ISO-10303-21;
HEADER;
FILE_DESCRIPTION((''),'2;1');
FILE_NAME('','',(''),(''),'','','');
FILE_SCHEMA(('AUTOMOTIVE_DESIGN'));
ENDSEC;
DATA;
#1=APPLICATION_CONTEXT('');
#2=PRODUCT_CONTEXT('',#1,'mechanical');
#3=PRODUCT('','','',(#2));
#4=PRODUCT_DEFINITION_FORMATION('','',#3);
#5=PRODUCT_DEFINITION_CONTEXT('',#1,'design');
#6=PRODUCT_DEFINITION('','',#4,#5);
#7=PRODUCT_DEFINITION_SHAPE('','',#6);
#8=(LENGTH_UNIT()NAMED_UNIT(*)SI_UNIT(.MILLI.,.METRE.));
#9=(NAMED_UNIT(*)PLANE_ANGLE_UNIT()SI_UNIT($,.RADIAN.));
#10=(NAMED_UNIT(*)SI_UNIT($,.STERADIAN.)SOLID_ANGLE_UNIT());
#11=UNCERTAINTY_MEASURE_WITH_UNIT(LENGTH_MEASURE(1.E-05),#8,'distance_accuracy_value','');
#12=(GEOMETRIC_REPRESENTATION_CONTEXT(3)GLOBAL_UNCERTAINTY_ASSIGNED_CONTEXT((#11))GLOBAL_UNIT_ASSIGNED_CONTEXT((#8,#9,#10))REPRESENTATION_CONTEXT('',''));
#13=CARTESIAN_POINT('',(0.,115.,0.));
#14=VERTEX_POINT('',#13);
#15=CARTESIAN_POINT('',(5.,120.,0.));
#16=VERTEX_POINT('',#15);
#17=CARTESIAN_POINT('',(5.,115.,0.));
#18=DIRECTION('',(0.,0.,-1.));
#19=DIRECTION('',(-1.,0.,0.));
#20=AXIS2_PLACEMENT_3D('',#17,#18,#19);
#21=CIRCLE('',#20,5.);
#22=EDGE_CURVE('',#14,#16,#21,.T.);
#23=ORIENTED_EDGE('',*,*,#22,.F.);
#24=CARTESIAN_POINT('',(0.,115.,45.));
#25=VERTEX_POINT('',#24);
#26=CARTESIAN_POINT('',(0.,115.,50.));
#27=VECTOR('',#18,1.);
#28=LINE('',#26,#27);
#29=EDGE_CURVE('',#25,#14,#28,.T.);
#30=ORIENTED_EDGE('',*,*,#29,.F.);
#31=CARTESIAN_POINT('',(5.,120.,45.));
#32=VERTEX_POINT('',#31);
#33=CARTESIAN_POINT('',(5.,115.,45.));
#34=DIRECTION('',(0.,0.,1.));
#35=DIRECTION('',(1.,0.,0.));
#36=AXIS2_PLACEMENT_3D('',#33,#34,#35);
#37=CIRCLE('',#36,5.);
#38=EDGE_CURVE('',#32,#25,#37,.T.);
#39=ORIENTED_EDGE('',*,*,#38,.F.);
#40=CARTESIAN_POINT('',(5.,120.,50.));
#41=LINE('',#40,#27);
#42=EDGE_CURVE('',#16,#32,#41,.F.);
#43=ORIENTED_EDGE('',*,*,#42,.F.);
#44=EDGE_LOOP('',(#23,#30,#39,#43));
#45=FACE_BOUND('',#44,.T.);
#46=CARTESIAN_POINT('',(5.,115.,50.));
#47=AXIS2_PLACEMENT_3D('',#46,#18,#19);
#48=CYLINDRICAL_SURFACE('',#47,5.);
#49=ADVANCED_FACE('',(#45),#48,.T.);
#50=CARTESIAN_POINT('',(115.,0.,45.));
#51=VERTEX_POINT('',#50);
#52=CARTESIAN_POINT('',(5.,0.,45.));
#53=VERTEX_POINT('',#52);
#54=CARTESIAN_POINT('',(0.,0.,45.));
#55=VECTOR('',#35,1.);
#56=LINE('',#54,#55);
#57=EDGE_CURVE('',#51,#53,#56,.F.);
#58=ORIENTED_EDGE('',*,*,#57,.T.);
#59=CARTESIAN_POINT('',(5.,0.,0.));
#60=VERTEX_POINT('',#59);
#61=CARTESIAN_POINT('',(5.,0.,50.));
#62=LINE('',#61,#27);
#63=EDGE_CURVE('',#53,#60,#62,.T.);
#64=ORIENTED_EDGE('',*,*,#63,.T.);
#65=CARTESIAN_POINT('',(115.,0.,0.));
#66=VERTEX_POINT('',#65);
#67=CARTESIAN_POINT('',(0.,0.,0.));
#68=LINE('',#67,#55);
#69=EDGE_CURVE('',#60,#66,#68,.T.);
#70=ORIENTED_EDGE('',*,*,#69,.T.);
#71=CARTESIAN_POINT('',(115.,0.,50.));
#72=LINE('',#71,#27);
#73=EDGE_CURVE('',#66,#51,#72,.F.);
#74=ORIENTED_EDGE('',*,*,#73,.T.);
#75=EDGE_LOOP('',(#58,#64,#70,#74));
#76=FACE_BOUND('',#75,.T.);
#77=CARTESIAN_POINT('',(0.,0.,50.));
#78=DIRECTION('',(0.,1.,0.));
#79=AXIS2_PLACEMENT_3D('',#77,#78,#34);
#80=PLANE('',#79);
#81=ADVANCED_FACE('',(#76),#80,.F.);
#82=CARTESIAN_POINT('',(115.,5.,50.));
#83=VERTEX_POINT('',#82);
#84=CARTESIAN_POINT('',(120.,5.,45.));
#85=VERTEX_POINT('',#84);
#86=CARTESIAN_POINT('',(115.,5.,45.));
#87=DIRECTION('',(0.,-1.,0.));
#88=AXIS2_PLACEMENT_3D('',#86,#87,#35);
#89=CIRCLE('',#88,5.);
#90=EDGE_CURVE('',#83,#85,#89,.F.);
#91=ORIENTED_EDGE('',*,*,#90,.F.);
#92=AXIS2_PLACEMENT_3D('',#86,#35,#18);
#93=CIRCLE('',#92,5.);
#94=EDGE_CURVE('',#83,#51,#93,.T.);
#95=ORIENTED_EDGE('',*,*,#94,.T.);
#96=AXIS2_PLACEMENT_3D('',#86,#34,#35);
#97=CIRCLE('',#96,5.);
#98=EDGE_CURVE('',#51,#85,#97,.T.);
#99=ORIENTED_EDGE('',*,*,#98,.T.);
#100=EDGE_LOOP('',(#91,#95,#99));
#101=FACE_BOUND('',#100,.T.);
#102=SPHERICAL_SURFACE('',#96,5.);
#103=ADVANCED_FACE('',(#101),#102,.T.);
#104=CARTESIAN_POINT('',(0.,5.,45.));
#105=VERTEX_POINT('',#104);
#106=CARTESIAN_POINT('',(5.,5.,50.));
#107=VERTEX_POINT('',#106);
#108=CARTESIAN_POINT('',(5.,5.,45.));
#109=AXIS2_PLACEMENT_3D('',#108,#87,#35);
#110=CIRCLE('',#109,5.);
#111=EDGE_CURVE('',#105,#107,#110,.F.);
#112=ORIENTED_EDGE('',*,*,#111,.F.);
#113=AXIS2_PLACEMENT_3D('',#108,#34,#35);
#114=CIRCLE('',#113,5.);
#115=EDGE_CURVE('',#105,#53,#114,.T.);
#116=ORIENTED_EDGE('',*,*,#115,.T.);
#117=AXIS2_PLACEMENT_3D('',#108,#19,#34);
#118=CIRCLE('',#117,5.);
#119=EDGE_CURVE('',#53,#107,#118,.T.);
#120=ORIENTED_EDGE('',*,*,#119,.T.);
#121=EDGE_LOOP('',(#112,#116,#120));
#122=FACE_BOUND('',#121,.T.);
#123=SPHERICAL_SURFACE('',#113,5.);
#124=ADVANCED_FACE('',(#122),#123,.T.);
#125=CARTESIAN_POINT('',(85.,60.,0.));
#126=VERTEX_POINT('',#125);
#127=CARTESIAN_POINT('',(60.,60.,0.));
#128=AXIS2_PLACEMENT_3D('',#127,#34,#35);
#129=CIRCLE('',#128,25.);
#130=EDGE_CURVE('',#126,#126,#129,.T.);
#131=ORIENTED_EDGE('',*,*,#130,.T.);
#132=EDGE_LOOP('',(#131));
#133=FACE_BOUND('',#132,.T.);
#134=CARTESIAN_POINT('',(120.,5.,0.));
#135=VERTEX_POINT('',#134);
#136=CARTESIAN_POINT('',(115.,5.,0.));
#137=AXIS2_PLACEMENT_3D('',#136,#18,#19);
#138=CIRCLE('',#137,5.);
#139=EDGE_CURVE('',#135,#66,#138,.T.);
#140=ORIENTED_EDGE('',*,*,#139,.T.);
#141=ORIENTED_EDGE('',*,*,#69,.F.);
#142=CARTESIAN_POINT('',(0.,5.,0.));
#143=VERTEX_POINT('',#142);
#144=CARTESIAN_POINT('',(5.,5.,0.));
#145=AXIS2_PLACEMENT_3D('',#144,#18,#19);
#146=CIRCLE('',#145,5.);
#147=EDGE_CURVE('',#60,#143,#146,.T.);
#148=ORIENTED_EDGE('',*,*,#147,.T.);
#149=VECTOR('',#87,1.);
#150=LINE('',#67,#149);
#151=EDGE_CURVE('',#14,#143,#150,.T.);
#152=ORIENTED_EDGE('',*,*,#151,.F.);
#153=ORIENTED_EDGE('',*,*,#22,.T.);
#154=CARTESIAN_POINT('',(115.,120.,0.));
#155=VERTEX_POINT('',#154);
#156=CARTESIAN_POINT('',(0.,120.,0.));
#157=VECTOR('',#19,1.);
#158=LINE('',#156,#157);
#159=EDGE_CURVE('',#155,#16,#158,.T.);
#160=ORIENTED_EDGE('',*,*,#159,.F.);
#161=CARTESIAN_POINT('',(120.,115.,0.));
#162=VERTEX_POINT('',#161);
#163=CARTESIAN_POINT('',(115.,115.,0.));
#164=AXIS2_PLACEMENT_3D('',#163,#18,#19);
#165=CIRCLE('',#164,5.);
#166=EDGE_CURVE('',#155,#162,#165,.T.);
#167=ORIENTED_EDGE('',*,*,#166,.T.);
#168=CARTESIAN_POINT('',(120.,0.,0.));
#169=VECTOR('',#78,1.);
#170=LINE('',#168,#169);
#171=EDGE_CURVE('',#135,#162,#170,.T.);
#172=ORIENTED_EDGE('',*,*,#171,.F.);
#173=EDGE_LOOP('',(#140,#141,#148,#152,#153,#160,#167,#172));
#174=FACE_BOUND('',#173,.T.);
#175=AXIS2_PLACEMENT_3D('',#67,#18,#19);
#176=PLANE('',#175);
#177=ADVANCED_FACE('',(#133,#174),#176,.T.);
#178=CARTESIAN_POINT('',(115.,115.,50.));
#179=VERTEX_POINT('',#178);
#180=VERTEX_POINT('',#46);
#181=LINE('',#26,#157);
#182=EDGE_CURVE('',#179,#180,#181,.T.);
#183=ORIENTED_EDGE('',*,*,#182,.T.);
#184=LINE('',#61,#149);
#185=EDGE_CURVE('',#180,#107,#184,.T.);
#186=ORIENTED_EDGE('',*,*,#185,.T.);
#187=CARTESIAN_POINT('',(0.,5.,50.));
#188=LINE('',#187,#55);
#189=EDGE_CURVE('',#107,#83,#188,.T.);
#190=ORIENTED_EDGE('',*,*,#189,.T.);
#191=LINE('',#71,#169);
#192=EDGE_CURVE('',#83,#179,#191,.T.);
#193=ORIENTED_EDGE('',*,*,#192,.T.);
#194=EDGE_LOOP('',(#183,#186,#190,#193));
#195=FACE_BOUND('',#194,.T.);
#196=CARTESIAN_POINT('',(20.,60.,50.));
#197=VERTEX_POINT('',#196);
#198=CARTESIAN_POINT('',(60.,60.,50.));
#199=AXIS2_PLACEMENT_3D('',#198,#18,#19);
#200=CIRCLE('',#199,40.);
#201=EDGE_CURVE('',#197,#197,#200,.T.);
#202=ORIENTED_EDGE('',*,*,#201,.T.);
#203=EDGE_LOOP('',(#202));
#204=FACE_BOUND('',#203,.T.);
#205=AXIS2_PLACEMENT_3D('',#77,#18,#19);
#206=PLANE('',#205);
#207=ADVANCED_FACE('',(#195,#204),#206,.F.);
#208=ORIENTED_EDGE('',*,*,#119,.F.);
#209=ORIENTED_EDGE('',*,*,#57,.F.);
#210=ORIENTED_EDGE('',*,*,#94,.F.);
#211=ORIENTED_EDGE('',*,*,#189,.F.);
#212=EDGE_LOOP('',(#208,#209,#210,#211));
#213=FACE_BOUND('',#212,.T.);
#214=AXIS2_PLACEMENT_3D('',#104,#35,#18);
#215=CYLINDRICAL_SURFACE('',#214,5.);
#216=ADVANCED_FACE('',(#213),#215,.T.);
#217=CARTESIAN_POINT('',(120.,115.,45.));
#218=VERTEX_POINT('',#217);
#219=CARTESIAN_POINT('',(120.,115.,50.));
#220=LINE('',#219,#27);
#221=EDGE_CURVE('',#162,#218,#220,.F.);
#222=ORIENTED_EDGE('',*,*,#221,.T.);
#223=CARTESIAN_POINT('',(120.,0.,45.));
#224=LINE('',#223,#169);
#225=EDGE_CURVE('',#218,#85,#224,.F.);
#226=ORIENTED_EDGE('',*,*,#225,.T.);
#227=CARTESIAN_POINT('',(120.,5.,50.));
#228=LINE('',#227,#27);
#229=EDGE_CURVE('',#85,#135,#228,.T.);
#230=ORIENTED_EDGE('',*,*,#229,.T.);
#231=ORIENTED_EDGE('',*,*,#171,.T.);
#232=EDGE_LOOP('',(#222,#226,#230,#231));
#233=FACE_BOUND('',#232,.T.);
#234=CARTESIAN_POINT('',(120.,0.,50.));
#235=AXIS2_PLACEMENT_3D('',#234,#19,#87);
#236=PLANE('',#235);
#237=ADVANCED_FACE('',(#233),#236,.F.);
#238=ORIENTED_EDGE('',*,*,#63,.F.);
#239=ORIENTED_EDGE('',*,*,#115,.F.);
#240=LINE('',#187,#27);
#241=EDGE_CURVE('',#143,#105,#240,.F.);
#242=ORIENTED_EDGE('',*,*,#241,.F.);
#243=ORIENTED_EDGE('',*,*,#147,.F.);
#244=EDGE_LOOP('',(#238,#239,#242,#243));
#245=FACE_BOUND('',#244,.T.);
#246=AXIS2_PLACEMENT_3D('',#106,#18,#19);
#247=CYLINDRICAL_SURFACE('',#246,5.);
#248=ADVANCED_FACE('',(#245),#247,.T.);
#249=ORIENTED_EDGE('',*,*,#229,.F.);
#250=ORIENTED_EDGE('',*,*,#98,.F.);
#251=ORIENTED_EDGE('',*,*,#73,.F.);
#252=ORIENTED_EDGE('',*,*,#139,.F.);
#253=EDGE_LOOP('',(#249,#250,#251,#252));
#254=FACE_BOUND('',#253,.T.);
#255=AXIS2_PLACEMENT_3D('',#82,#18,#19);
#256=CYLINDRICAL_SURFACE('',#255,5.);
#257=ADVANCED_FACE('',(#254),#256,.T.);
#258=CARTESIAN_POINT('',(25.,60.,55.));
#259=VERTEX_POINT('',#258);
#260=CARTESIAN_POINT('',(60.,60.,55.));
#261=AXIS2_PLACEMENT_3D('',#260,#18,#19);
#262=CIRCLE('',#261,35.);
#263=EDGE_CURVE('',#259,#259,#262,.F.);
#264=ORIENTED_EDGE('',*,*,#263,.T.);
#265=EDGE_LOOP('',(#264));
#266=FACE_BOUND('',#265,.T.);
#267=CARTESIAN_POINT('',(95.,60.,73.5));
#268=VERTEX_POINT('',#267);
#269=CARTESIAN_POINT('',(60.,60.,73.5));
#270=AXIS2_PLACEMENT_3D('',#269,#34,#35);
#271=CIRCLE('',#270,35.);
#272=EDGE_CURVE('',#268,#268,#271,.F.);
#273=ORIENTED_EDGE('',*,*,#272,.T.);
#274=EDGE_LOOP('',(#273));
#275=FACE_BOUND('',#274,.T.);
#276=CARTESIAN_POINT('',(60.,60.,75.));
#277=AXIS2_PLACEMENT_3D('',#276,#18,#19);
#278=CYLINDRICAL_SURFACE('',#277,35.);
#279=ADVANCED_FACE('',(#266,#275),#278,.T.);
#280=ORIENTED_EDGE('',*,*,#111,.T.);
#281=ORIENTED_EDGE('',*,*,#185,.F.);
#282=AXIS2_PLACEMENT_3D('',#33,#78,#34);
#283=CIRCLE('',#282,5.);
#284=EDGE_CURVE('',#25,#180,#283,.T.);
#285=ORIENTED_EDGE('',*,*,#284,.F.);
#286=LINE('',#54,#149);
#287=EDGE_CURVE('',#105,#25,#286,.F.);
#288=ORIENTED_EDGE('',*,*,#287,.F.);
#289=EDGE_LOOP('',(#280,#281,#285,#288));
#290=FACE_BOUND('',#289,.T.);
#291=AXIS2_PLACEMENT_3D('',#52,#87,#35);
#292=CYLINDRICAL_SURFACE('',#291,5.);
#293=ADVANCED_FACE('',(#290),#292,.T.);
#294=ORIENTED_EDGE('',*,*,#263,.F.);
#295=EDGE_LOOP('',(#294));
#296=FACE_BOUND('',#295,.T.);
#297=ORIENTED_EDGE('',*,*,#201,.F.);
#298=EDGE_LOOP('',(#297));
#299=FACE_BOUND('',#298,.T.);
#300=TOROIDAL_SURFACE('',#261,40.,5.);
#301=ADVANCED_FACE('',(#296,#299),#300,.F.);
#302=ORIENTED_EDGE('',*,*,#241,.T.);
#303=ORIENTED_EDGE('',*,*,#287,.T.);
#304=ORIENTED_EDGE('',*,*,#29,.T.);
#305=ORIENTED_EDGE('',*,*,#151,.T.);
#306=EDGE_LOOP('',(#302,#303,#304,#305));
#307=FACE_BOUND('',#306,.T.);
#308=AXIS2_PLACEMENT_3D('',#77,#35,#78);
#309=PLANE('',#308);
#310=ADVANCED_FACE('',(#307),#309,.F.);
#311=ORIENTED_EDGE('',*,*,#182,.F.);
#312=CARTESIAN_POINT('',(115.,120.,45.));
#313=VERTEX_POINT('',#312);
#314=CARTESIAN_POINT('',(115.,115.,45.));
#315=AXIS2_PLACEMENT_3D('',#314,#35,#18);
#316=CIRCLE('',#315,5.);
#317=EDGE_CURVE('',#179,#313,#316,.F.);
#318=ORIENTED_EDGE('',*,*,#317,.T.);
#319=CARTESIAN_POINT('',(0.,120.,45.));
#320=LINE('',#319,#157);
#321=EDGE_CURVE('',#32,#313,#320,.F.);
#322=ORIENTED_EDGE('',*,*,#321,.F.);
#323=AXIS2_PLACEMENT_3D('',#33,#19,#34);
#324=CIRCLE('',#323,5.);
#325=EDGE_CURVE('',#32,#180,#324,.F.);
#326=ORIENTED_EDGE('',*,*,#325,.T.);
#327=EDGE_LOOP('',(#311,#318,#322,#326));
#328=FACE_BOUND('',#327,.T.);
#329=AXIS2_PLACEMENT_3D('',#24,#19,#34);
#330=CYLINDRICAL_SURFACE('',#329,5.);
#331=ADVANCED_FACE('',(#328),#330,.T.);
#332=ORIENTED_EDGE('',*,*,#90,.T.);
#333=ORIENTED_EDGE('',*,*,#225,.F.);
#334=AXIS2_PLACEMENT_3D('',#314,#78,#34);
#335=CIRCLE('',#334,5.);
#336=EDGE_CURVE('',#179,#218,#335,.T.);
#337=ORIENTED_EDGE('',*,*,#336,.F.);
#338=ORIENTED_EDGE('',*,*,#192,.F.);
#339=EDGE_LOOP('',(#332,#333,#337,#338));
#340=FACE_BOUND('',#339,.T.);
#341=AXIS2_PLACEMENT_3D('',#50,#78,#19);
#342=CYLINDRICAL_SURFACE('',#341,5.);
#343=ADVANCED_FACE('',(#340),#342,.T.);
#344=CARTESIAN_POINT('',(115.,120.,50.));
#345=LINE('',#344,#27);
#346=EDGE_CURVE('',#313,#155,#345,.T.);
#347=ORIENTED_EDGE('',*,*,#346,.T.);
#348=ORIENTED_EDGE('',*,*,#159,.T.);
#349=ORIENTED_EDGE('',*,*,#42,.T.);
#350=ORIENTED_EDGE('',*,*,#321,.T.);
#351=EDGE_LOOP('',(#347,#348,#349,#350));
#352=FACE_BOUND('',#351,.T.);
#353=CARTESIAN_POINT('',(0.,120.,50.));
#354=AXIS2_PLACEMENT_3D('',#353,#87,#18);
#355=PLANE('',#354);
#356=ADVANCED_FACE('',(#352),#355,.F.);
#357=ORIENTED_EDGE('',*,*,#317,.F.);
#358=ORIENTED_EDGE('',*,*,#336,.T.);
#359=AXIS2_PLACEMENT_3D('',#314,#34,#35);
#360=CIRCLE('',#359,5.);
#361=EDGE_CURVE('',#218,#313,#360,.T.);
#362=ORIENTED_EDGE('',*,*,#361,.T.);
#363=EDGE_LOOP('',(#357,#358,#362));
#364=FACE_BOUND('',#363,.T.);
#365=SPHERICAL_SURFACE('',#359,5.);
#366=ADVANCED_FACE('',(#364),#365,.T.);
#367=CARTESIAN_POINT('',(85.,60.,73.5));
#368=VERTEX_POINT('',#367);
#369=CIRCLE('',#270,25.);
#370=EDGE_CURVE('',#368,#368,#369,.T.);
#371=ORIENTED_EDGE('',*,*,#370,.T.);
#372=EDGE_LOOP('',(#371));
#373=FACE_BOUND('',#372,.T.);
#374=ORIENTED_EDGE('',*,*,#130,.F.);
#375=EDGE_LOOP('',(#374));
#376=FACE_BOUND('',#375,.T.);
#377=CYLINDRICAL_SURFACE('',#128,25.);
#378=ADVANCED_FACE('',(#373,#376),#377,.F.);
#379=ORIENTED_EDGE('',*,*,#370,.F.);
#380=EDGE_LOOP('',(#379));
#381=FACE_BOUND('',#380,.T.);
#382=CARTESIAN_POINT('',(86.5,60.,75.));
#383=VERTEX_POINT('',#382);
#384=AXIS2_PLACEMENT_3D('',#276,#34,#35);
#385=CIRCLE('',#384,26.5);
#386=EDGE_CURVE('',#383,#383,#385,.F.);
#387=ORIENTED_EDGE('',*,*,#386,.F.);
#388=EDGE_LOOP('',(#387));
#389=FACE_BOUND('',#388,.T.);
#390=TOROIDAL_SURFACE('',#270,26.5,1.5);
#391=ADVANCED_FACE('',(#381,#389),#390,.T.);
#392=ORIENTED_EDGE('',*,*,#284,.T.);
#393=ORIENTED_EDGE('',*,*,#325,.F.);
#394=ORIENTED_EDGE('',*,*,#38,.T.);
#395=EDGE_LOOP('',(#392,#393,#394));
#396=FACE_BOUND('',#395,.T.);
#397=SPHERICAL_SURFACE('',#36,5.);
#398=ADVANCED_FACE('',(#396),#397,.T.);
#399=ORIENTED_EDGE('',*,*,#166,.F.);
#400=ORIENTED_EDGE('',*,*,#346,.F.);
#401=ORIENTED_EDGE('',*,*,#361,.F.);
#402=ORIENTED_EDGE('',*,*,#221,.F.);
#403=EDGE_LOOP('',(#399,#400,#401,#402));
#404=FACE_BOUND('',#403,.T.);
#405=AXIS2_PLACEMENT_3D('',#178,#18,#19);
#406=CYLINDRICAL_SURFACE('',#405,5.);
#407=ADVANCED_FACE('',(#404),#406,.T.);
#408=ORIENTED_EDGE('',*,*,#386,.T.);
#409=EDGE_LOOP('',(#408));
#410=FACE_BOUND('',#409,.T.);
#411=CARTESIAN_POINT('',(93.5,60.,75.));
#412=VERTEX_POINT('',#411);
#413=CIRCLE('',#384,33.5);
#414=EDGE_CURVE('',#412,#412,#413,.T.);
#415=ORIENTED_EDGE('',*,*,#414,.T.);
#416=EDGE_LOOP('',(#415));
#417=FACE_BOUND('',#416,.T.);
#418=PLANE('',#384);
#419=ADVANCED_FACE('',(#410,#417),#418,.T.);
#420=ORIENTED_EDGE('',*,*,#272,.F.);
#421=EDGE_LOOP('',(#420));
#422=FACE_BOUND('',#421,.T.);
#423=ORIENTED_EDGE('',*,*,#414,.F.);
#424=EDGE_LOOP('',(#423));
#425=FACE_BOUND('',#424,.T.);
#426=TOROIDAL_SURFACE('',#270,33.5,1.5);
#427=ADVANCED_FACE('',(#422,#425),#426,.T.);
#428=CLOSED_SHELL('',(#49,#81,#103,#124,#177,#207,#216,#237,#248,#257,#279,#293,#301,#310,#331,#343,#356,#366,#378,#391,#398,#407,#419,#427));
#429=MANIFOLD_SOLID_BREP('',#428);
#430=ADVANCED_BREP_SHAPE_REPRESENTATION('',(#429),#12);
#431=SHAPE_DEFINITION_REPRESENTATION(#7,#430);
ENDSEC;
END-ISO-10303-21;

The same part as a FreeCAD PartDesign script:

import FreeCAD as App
import Part
import Sketcher
from FreeCAD import Vector


def edges_at(feature, points):
    """Names of the edges that pass closest to the given points."""
    edges = feature.Shape.Edges
    near = lambda p: min(range(len(edges)), key=lambda i: edges[i].distToShape(Part.Vertex(*p))[0])
    return sorted({f"Edge{near(p) + 1}" for p in points})


def add_polygon(sketch, points):
    """Adds a closed chain of lines whose ends are joined by coincident constraints."""
    first, n = sketch.GeometryCount, len(points)
    for a, b in zip(points, points[1:] + points[:1]):
        sketch.addGeometry(Part.LineSegment(App.Vector(*a, 0), App.Vector(*b, 0)), False)
    for i in range(n):
        sketch.addConstraint(Sketcher.Constraint("Coincident", first + i, 2, first + (i + 1) % n, 1))

doc = App.newDocument("Part")
body = doc.addObject("PartDesign::Body", "Body")

# Sketch on XY plane
sketch1 = body.newObject("Sketcher::SketchObject", "Sketch")
sketch1.AttachmentSupport = (doc.getObject("XY_Plane"), [""])
sketch1.MapMode = "FlatFace"
add_polygon(sketch1, [(0, 120), (0, 0), (120, 0), (120, 120)])  # lines 0-3
sketch1.addConstraint(Sketcher.Constraint("Vertical", 0))
sketch1.addConstraint(Sketcher.Constraint("Horizontal", 1))
sketch1.addConstraint(Sketcher.Constraint("Vertical", 2))
sketch1.addConstraint(Sketcher.Constraint("Horizontal", 3))
sketch1.addConstraint(Sketcher.Constraint("Coincident", 0, 2, -1, 1))
sketch1.addConstraint(Sketcher.Constraint("Equal", 3, 0))
sketch1.addConstraint(Sketcher.Constraint("DistanceX", 1, 1, 1, 2, 120.0))
pad1 = body.newObject("PartDesign::Pad", "Pad")
pad1.Profile = sketch1
pad1.Length = 50

# Sketch on XY plane
sketch2 = body.newObject("Sketcher::SketchObject", "Sketch001")
sketch2.AttachmentSupport = (doc.getObject("XY_Plane"), [""])
sketch2.MapMode = "FlatFace"
sketch2.AttachmentOffset = App.Placement(Vector(0, 0, 50), App.Rotation())
sketch2.addGeometry(Part.Circle(Vector(60, 60, 0), Vector(0, 0, 1), 35), False)
sketch2.addConstraint(Sketcher.Constraint("Diameter", 0, 70.0))
sketch2.addConstraint(Sketcher.Constraint("DistanceX", -1, 1, 0, 3, 60.0))
sketch2.addConstraint(Sketcher.Constraint("DistanceY", -1, 1, 0, 3, 60.0))
pad2 = body.newObject("PartDesign::Pad", "Pad001")
pad2.Profile = sketch2
pad2.Length = 25

# Sketch on XY plane
sketch3 = body.newObject("Sketcher::SketchObject", "Sketch002")
sketch3.AttachmentSupport = (doc.getObject("XY_Plane"), [""])
sketch3.MapMode = "FlatFace"
sketch3.AttachmentOffset = App.Placement(Vector(0, 0, 75), App.Rotation())
sketch3.addGeometry(Part.Circle(Vector(60, 60, 0), Vector(0, 0, 1), 25), False)
sketch3.addConstraint(Sketcher.Constraint("Diameter", 0, 50.0))
sketch3.addConstraint(Sketcher.Constraint("DistanceX", -1, 1, 0, 3, 60.0))
sketch3.addConstraint(Sketcher.Constraint("DistanceY", -1, 1, 0, 3, 60.0))
pocket1 = body.newObject("PartDesign::Pocket", "Pocket")
pocket1.Profile = sketch3
pocket1.Type = "ThroughAll"
doc.recompute()

fillet = body.newObject("PartDesign::Fillet", "Fillet")
fillet.Base = (pocket1, edges_at(pocket1, [
    (120, 60, 50),
    (60, 120, 50),
    (95, 60, 50),
    (0, 60, 50),
    (60, 0, 50),
    (0, 120, 25),
    (120, 120, 25),
    (120, 0, 25),
    (0, 0, 25),
]))
fillet.Radius = 5
doc.recompute()

fillet2 = body.newObject("PartDesign::Fillet", "Fillet001")
fillet2.Base = (fillet, edges_at(fillet, [(95, 60, 75), (35, 60, 75)]))
fillet2.Radius = 1.5

doc.recompute()
